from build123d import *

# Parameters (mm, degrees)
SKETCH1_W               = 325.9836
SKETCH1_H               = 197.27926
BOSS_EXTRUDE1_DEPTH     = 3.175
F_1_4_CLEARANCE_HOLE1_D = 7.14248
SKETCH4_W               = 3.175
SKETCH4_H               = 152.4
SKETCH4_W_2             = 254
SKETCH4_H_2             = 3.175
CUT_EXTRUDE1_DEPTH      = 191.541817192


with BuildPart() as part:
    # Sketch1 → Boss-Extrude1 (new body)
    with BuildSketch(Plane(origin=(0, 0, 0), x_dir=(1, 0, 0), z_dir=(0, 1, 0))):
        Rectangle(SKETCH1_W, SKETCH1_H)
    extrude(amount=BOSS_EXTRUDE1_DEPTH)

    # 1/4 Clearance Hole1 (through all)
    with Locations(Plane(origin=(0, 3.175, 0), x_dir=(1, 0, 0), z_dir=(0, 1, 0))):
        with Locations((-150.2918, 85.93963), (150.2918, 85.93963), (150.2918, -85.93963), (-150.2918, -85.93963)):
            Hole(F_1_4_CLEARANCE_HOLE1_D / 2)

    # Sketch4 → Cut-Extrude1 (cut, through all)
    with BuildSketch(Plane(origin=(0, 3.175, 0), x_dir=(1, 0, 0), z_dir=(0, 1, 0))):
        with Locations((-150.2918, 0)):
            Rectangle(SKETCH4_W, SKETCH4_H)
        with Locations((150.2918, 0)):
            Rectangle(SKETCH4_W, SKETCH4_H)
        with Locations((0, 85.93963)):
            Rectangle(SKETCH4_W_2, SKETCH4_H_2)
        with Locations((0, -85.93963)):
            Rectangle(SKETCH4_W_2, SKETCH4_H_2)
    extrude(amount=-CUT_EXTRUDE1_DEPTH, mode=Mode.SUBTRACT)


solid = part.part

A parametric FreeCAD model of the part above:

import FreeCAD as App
import Part
import Sketcher
from FreeCAD import Vector
Q = App.Units.Quantity

doc = App.newDocument("Part")
body = doc.addObject("PartDesign::Body", "Body")

sketch1 = body.newObject("Sketcher::SketchObject", "Sketch")
sketch1.AttachmentSupport = (doc.getObject("XZ_Plane"), [""])
sketch1.MapMode = "FlatFace"
sketch1.addGeometry(Part.LineSegment(Vector(-163, -99, 0), Vector(-163, 99, 0)), False)
sketch1.addGeometry(Part.LineSegment(Vector(-163, 99, 0), Vector(163, 99, 0)), False)
sketch1.addGeometry(Part.LineSegment(Vector(163, 99, 0), Vector(163, -99, 0)), False)
sketch1.addGeometry(Part.LineSegment(Vector(163, -99, 0), Vector(-163, -99, 0)), False)
sketch1.addConstraint(Sketcher.Constraint("Coincident", 0, 2, 1, 1))
sketch1.addConstraint(Sketcher.Constraint("Coincident", 1, 2, 2, 1))
sketch1.addConstraint(Sketcher.Constraint("Coincident", 2, 2, 3, 1))
sketch1.addConstraint(Sketcher.Constraint("Coincident", 3, 2, 0, 1))
sketch1.addConstraint(Sketcher.Constraint("Vertical", 0))
sketch1.addConstraint(Sketcher.Constraint("Horizontal", 1))
sketch1.addConstraint(Sketcher.Constraint("Vertical", 2))
sketch1.addConstraint(Sketcher.Constraint("Horizontal", 3))
sketch1.addConstraint(Sketcher.Constraint("Symmetric", 0, 2, 2, 2, -1, 1))
sketch1.addConstraint(Sketcher.Constraint("DistanceX", 1, 1, 1, 2, Q("12.834 in")))
sketch1.addConstraint(Sketcher.Constraint("DistanceY", 0, 1, 0, 2, Q("7.7669 in")))
pad1 = body.newObject("PartDesign::Pad", "Pad")
pad1.Profile = sketch1
pad1.Length = Q("0.125 in")
pad1.Reversed = True

sketch2 = body.newObject("Sketcher::SketchObject", "Sketch001")
sketch2.AttachmentSupport = (doc.getObject("XZ_Plane"), [""])
sketch2.MapMode = "FlatFace"
sketch2.AttachmentOffset = App.Placement(Vector(0, 0, -0.125 * 25.4), App.Rotation())
sketch2.addGeometry(Part.Circle(Vector(-150.3, -85.9, 0), Vector(0, 0, 1), 3.6), False)
sketch2.addGeometry(Part.Circle(Vector(150.3, -85.9, 0), Vector(0, 0, 1), 3.6), False)
sketch2.addGeometry(Part.Circle(Vector(150.3, 85.9, 0), Vector(0, 0, 1), 3.6), False)
sketch2.addGeometry(Part.Circle(Vector(-150.3, 85.9, 0), Vector(0, 0, 1), 3.6), False)
sketch2.addConstraint(Sketcher.Constraint("Equal", 0, 1))
sketch2.addConstraint(Sketcher.Constraint("Equal", 1, 2))
sketch2.addConstraint(Sketcher.Constraint("Equal", 2, 3))
sketch2.addConstraint(Sketcher.Constraint("Symmetric", 0, 3, 2, 3, -1, 1))
sketch2.addConstraint(Sketcher.Constraint("Symmetric", 1, 3, 3, 3, -1, 1))
sketch2.addConstraint(Sketcher.Constraint("Symmetric", 0, 3, 1, 3, -2))
sketch2.addConstraint(Sketcher.Constraint("Diameter", 0, Q("0.2812 in")))
sketch2.addConstraint(Sketcher.Constraint("DistanceX", 0, 3, -1, 1, Q("5.917 in")))
sketch2.addConstraint(Sketcher.Constraint("DistanceY", 1, 3, 2, 3, Q("6.7669 in")))
doc.recompute()
hole = body.newObject("PartDesign::Hole", "Hole")
hole.Profile = sketch2
hole.ThreadType = "None"
hole.Diameter = Q("0.2812 in")
hole.DepthType = "ThroughAll"
hole.Reversed = True

sketch3 = body.newObject("Sketcher::SketchObject", "Sketch002")
sketch3.AttachmentSupport = (doc.getObject("XZ_Plane"), [""])
sketch3.MapMode = "FlatFace"
sketch3.AttachmentOffset = App.Placement(Vector(0, 0, -0.125 * 25.4), App.Rotation())
sketch3.addGeometry(Part.LineSegment(Vector(-151.9, -76.2, 0), Vector(-151.9, 76.2, 0)), False)
sketch3.addGeometry(Part.LineSegment(Vector(-151.9, 76.2, 0), Vector(-148.7, 76.2, 0)), False)
sketch3.addGeometry(Part.LineSegment(Vector(-148.7, 76.2, 0), Vector(-148.7, -76.2, 0)), False)
sketch3.addGeometry(Part.LineSegment(Vector(-148.7, -76.2, 0), Vector(-151.9, -76.2, 0)), False)
sketch3.addGeometry(Part.LineSegment(Vector(148.7, -76.2, 0), Vector(148.7, 76.2, 0)), False)
sketch3.addGeometry(Part.LineSegment(Vector(148.7, 76.2, 0), Vector(151.9, 76.2, 0)), False)
sketch3.addGeometry(Part.LineSegment(Vector(151.9, 76.2, 0), Vector(151.9, -76.2, 0)), False)
sketch3.addGeometry(Part.LineSegment(Vector(151.9, -76.2, 0), Vector(148.7, -76.2, 0)), False)
sketch3.addGeometry(Part.LineSegment(Vector(-127, -87.5, 0), Vector(-127, -84.4, 0)), False)
sketch3.addGeometry(Part.LineSegment(Vector(-127, -84.4, 0), Vector(127, -84.4, 0)), False)
sketch3.addGeometry(Part.LineSegment(Vector(127, -84.4, 0), Vector(127, -87.5, 0)), False)
sketch3.addGeometry(Part.LineSegment(Vector(127, -87.5, 0), Vector(-127, -87.5, 0)), False)
sketch3.addGeometry(Part.LineSegment(Vector(-127, 84.4, 0), Vector(-127, 87.5, 0)), False)
sketch3.addGeometry(Part.LineSegment(Vector(-127, 87.5, 0), Vector(127, 87.5, 0)), False)
sketch3.addGeometry(Part.LineSegment(Vector(127, 87.5, 0), Vector(127, 84.4, 0)), False)
sketch3.addGeometry(Part.LineSegment(Vector(127, 84.4, 0), Vector(-127, 84.4, 0)), False)
sketch3.addConstraint(Sketcher.Constraint("Coincident", 0, 2, 1, 1))
sketch3.addConstraint(Sketcher.Constraint("Coincident", 1, 2, 2, 1))
sketch3.addConstraint(Sketcher.Constraint("Coincident", 2, 2, 3, 1))
sketch3.addConstraint(Sketcher.Constraint("Coincident", 3, 2, 0, 1))
sketch3.addConstraint(Sketcher.Constraint("Coincident", 4, 2, 5, 1))
sketch3.addConstraint(Sketcher.Constraint("Coincident", 5, 2, 6, 1))
sketch3.addConstraint(Sketcher.Constraint("Coincident", 6, 2, 7, 1))
sketch3.addConstraint(Sketcher.Constraint("Coincident", 7, 2, 4, 1))
sketch3.addConstraint(Sketcher.Constraint("Coincident", 8, 2, 9, 1))
sketch3.addConstraint(Sketcher.Constraint("Coincident", 9, 2, 10, 1))
sketch3.addConstraint(Sketcher.Constraint("Coincident", 10, 2, 11, 1))
sketch3.addConstraint(Sketcher.Constraint("Coincident", 11, 2, 8, 1))
sketch3.addConstraint(Sketcher.Constraint("Coincident", 12, 2, 13, 1))
sketch3.addConstraint(Sketcher.Constraint("Coincident", 13, 2, 14, 1))
sketch3.addConstraint(Sketcher.Constraint("Coincident", 14, 2, 15, 1))
sketch3.addConstraint(Sketcher.Constraint("Coincident", 15, 2, 12, 1))
sketch3.addConstraint(Sketcher.Constraint("Vertical", 0))
sketch3.addConstraint(Sketcher.Constraint("Horizontal", 1))
sketch3.addConstraint(Sketcher.Constraint("Vertical", 2))
sketch3.addConstraint(Sketcher.Constraint("Horizontal", 3))
sketch3.addConstraint(Sketcher.Constraint("Vertical", 4))
sketch3.addConstraint(Sketcher.Constraint("Horizontal", 5))
sketch3.addConstraint(Sketcher.Constraint("Vertical", 6))
sketch3.addConstraint(Sketcher.Constraint("Horizontal", 7))
sketch3.addConstraint(Sketcher.Constraint("Vertical", 8))
sketch3.addConstraint(Sketcher.Constraint("Horizontal", 9))
sketch3.addConstraint(Sketcher.Constraint("Vertical", 10))
sketch3.addConstraint(Sketcher.Constraint("Horizontal", 11))
sketch3.addConstraint(Sketcher.Constraint("Vertical", 12))
sketch3.addConstraint(Sketcher.Constraint("Horizontal", 13))
sketch3.addConstraint(Sketcher.Constraint("Vertical", 14))
sketch3.addConstraint(Sketcher.Constraint("Horizontal", 15))
sketch3.addConstraint(Sketcher.Constraint("Symmetric", 2, 2, 4, 2, -1, 1))
sketch3.addConstraint(Sketcher.Constraint("Symmetric", 0, 2, 6, 2, -1, 1))
sketch3.addConstraint(Sketcher.Constraint("Symmetric", 10, 2, 12, 2, -1, 1))
sketch3.addConstraint(Sketcher.Constraint("Symmetric", 8, 2, 14, 2, -1, 1))
sketch3.addConstraint(Sketcher.Constraint("Horizontal", 1, 2, 4, 2))
sketch3.addConstraint(Sketcher.Constraint("Vertical", 11, 2, 12, 2))
sketch3.addConstraint(Sketcher.Constraint("Equal", 7, 8))
sketch3.addConstraint(Sketcher.Constraint("DistanceX", 9, 1, 9, 2, Q("10 in")))
sketch3.addConstraint(Sketcher.Constraint("DistanceY", 0, 1, 0, 2, Q("6 in")))
sketch3.addConstraint(Sketcher.Constraint("DistanceX", 1, 1, 1, 2, Q("0.125 in")))
sketch3.addConstraint(Sketcher.Constraint("DistanceX", 1, 2, 4, 2, Q("11.709 in")))
sketch3.addConstraint(Sketcher.Constraint("DistanceY", 8, 2, 12, 2, Q("6.7669 in")))
pocket1 = body.newObject("PartDesign::Pocket", "Pocket")
pocket1.Profile = sketch3
pocket1.Type = "ThroughAll"
pocket1.Reversed = True

doc.recompute()
